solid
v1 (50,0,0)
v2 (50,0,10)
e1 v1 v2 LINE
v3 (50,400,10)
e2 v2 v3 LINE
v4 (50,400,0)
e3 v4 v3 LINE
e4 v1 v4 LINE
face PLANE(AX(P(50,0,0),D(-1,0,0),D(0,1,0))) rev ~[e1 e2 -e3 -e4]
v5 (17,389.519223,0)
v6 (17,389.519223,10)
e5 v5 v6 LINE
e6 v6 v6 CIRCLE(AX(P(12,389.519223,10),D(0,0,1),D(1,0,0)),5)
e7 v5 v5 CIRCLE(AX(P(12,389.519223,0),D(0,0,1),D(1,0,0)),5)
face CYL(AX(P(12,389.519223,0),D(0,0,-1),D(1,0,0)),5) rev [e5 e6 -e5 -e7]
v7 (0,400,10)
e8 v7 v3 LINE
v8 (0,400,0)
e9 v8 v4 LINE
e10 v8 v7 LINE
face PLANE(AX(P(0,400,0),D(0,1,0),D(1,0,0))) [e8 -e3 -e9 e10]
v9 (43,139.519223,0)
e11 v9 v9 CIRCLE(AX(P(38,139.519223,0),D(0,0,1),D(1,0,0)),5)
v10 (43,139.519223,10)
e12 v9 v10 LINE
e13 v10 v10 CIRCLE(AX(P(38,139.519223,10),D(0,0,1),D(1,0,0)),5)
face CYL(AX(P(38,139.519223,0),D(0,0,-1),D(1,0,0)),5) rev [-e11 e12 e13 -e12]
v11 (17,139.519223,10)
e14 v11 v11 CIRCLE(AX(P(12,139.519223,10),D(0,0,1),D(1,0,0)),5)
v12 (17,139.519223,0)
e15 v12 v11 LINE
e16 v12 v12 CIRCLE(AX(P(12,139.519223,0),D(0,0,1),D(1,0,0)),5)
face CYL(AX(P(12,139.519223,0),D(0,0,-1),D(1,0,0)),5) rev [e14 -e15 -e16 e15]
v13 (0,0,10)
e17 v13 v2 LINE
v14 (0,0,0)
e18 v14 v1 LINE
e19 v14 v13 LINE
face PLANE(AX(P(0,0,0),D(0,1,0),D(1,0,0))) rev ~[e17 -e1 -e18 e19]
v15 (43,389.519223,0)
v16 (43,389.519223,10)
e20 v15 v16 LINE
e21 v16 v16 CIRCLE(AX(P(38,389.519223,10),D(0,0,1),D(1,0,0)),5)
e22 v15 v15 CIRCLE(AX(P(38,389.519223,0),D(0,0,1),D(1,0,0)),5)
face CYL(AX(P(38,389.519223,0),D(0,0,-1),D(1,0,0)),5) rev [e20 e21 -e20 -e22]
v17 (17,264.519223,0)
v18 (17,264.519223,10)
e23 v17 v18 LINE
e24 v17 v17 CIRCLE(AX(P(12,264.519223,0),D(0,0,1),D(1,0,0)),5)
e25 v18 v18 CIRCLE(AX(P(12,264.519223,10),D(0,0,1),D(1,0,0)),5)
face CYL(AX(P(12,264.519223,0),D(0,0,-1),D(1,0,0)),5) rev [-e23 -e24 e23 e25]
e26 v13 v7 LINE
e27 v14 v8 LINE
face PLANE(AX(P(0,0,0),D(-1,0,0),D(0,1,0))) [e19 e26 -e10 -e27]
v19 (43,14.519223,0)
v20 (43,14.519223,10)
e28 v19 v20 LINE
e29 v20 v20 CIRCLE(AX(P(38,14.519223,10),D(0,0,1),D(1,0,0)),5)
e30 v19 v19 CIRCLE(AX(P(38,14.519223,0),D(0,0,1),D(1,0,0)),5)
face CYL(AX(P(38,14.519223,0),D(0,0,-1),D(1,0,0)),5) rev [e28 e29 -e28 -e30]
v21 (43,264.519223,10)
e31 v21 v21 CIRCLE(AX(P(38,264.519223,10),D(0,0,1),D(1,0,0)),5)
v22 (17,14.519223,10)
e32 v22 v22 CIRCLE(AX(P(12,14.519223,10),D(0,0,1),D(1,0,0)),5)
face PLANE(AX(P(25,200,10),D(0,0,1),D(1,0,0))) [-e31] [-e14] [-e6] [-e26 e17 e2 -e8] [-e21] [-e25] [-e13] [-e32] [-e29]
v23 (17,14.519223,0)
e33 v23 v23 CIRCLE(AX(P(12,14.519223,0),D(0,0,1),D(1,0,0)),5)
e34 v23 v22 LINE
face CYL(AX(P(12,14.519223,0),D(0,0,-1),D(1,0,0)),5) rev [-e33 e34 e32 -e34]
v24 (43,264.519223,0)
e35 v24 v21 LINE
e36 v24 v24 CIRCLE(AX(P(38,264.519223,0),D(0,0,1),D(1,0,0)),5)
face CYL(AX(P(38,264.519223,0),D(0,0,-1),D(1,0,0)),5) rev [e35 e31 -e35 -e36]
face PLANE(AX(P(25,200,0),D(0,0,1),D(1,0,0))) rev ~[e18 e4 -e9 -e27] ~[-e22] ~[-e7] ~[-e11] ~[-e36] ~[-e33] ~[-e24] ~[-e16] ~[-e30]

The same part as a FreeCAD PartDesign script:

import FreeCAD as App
import Part
import Sketcher
Q = App.Units.Quantity

doc = App.newDocument("Part")
body = doc.addObject("PartDesign::Body", "Body")

# Sketch on XY plane
sketch1 = doc.addObject("Sketcher::SketchObject", "Sketch")
body.addObject(sketch1)
sketch1.AttachmentSupport = (doc.XY_Plane, [""])
sketch1.MapMode = "FlatFace"
sketch1.addGeometry([
    Part.LineSegment(App.Vector(0, 400, 0), App.Vector(0, 0, 0)),  # 0
    Part.LineSegment(App.Vector(0, 0, 0), App.Vector(50, 0, 0)),  # 1
    Part.LineSegment(App.Vector(50, 0, 0), App.Vector(50, 400, 0)),  # 2
    Part.LineSegment(App.Vector(50, 400, 0), App.Vector(0, 400, 0)),  # 3
    Part.Circle(App.Vector(12, 14.519223, 0), App.Vector(0, 0, 1), 5),  # 4
    Part.Circle(App.Vector(12, 139.519223, 0), App.Vector(0, 0, 1), 5),  # 5
    Part.Circle(App.Vector(38, 14.519223, 0), App.Vector(0, 0, 1), 5),  # 6
    Part.Circle(App.Vector(38, 139.519223, 0), App.Vector(0, 0, 1), 5),  # 7
    Part.Circle(App.Vector(12, 264.519223, 0), App.Vector(0, 0, 1), 5),  # 8
    Part.Circle(App.Vector(12, 389.519223, 0), App.Vector(0, 0, 1), 5),  # 9
    Part.Circle(App.Vector(38, 264.519223, 0), App.Vector(0, 0, 1), 5),  # 10
    Part.Circle(App.Vector(38, 389.519223, 0), App.Vector(0, 0, 1), 5),  # 11
], False)
sketch1.addConstraint([
    Sketcher.Constraint("Coincident", 0, 2, 1, 1),
    Sketcher.Constraint("Coincident", 1, 2, 2, 1),
    Sketcher.Constraint("Coincident", 2, 2, 3, 1),
    Sketcher.Constraint("Coincident", 3, 2, 0, 1),
    Sketcher.Constraint("Vertical", 0),
    Sketcher.Constraint("Horizontal", 1),
    Sketcher.Constraint("Vertical", 2),
    Sketcher.Constraint("Horizontal", 3),
    Sketcher.Constraint("Coincident", 0, 2, -1, 1),
    Sketcher.Constraint("Equal", 4, 5),
    Sketcher.Constraint("Equal", 5, 6),
    Sketcher.Constraint("Equal", 6, 7),
    Sketcher.Constraint("Equal", 7, 8),
    Sketcher.Constraint("Equal", 8, 9),
    Sketcher.Constraint("Equal", 9, 10),
    Sketcher.Constraint("Equal", 10, 11),
    Sketcher.Constraint("Horizontal", 4, 3, 6, 3),
    Sketcher.Constraint("Horizontal", 5, 3, 7, 3),
    Sketcher.Constraint("Horizontal", 8, 3, 10, 3),
    Sketcher.Constraint("Horizontal", 9, 3, 11, 3),
    Sketcher.Constraint("Vertical", 4, 3, 5, 3),
    Sketcher.Constraint("Vertical", 6, 3, 7, 3),
    Sketcher.Constraint("Vertical", 5, 3, 8, 3),
    Sketcher.Constraint("Vertical", 8, 3, 9, 3),
    Sketcher.Constraint("Vertical", 7, 3, 10, 3),
    Sketcher.Constraint("Vertical", 10, 3, 11, 3),
    Sketcher.Constraint("Diameter", 4, Q("10 mm")),
    Sketcher.Constraint("DistanceX", 1, 1, 1, 2, Q("50 mm")),
    Sketcher.Constraint("DistanceY", 0, 2, 0, 1, Q("400 mm")),
    Sketcher.Constraint("DistanceX", -1, 1, 4, 3, Q("12 mm")),
    Sketcher.Constraint("DistanceX", -1, 1, 6, 3, Q("38 mm")),
    Sketcher.Constraint("DistanceY", 4, 3, 5, 3, Q("125 mm")),
    Sketcher.Constraint("DistanceY", 5, 3, 8, 3, Q("125 mm")),
    Sketcher.Constraint("DistanceY", 8, 3, 9, 3, Q("125 mm")),
    Sketcher.Constraint("DistanceY", -1, 1, 4, 3, Q("14.519223 mm")),
])
pad1 = doc.addObject("PartDesign::Pad", "Pad")
body.addObject(pad1)
pad1.Profile = sketch1
pad1.Length = 10

doc.recompute()
